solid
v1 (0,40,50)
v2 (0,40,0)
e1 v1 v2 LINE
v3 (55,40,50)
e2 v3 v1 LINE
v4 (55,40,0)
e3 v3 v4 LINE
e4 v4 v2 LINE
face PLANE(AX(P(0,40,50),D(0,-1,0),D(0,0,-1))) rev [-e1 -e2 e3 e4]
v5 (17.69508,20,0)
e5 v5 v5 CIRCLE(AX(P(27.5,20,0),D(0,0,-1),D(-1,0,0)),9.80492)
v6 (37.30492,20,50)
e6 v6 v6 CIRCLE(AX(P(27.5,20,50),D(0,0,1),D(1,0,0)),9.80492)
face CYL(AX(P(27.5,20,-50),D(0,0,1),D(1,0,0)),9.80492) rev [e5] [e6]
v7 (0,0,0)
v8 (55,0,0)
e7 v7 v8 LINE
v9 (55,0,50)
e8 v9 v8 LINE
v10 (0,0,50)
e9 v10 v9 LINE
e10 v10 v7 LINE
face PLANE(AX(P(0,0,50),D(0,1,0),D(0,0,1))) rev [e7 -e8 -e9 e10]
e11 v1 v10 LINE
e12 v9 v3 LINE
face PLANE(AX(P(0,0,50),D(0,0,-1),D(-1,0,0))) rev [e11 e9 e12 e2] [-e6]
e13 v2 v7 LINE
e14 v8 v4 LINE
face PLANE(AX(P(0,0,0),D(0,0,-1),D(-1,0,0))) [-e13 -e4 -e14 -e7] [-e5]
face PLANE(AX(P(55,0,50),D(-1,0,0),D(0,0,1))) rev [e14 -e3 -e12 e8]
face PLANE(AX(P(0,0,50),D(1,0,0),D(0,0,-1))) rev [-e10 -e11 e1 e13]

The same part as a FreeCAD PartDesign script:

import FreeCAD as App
import Part
import Sketcher
from FreeCAD import Vector

doc = App.newDocument("Part")
body = doc.addObject("PartDesign::Body", "Body")

# Sketch on XY plane
sketch1 = body.newObject("Sketcher::SketchObject", "Sketch")
sketch1.AttachmentSupport = (doc.getObject("XY_Plane"), [""])
sketch1.MapMode = "FlatFace"
sketch1.addGeometry([
    Part.LineSegment(Vector(0, 40, 0), Vector(0, 0, 0)),
    Part.LineSegment(Vector(0, 0, 0), Vector(55, 0, 0)),
    Part.LineSegment(Vector(55, 0, 0), Vector(55, 40, 0)),
    Part.LineSegment(Vector(55, 40, 0), Vector(0, 40, 0)),
], False)
sketch1.addConstraint([
    Sketcher.Constraint("Coincident", 0, 2, 1, 1),
    Sketcher.Constraint("Coincident", 1, 2, 2, 1),
    Sketcher.Constraint("Coincident", 2, 2, 3, 1),
    Sketcher.Constraint("Coincident", 3, 2, 0, 1),
    Sketcher.Constraint("Vertical", 0),
    Sketcher.Constraint("Horizontal", 1),
    Sketcher.Constraint("Vertical", 2),
    Sketcher.Constraint("Horizontal", 3),
    Sketcher.Constraint("Coincident", 0, 2, -1, 1),
    Sketcher.Constraint("DistanceX", 1, 1, 1, 2, 55.0),
    Sketcher.Constraint("DistanceY", 0, 2, 0, 1, 40.0),
])
pad1 = body.newObject("PartDesign::Pad", "Pad")
pad1.Profile = sketch1
pad1.Length = 50

# Sketch on XY plane
sketch2 = body.newObject("Sketcher::SketchObject", "Sketch001")
sketch2.AttachmentSupport = (doc.getObject("XY_Plane"), [""])
sketch2.MapMode = "FlatFace"
sketch2.AttachmentOffset = App.Placement(Vector(0, 0, 50), App.Rotation())
sketch2.addGeometry(Part.Circle(Vector(27.5, 20, 0), Vector(0, 0, 1), 9.80492), False)
sketch2.addConstraint([
    Sketcher.Constraint("DistanceY", -1, 1, 0, 3, 20.0),
    Sketcher.Constraint("DistanceX", -1, 1, 0, 3, 27.5),
    Sketcher.Constraint("Diameter", 0, 19.609839),
])
pocket1 = body.newObject("PartDesign::Pocket", "Pocket")
pocket1.Profile = sketch2
pocket1.Length = 100

doc.recompute()
